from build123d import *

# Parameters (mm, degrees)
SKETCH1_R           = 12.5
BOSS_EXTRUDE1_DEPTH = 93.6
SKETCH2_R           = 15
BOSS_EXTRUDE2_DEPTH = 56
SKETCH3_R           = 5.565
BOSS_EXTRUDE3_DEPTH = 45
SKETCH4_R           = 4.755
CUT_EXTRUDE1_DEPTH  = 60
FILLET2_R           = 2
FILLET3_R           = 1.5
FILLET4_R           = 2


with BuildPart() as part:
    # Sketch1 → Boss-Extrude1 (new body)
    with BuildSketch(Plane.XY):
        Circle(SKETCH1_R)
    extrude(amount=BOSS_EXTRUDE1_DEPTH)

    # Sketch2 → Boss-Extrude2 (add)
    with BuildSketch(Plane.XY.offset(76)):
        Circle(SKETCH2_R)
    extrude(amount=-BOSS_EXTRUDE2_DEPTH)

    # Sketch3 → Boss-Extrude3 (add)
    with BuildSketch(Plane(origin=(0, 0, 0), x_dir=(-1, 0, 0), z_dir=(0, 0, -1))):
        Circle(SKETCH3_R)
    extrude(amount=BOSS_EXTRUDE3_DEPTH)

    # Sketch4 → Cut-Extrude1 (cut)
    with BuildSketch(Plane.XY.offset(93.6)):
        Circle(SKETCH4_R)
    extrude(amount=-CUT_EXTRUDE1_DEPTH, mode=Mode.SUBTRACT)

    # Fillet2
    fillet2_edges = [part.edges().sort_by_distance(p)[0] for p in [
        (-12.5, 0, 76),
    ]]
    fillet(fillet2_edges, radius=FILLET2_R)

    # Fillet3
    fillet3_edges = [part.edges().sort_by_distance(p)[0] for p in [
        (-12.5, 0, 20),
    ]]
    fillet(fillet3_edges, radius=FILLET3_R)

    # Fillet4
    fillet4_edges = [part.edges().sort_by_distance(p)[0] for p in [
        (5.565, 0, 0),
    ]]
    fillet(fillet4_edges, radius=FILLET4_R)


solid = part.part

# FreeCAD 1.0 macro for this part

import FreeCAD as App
import Part
import Sketcher

V = App.Vector


def edges_at(feature, points):
    """Names of the edges that pass closest to the given points."""
    edges = feature.Shape.Edges
    near = lambda p: min(range(len(edges)), key=lambda i: edges[i].distToShape(Part.Vertex(*p))[0])
    return sorted({f"Edge{near(p) + 1}" for p in points})

doc = App.newDocument("Part")
body = doc.addObject("PartDesign::Body", "Body")

sketch1 = body.newObject("Sketcher::SketchObject", "Sketch")
sketch1.AttachmentSupport = (doc.getObject("XY_Plane"), [""])
sketch1.MapMode = "FlatFace"
sketch1.addGeometry(Part.Circle(V(0, 0, 0), V(0, 0, 1), 12.5), False)
sketch1.addConstraint([
    Sketcher.Constraint("Coincident", 0, 3, -1, 1),
    Sketcher.Constraint("Diameter", 0, 25.0),
])
pad1 = body.newObject("PartDesign::Pad", "Pad")
pad1.Profile = sketch1
pad1.Length = 93.6

sketch2 = body.newObject("Sketcher::SketchObject", "Sketch001")
sketch2.AttachmentSupport = (doc.getObject("XY_Plane"), [""])
sketch2.MapMode = "FlatFace"
sketch2.AttachmentOffset = App.Placement(V(0, 0, 76), App.Rotation())
sketch2.addGeometry(Part.Circle(V(0, 0, 0), V(0, 0, 1), 15), False)
sketch2.addConstraint([
    Sketcher.Constraint("Coincident", 0, 3, -1, 1),
    Sketcher.Constraint("Diameter", 0, 30.0),
])
pad2 = body.newObject("PartDesign::Pad", "Pad001")
pad2.Profile = sketch2
pad2.Length = 56
pad2.Reversed = True

sketch3 = body.newObject("Sketcher::SketchObject", "Sketch002")
sketch3.AttachmentSupport = (doc.getObject("XY_Plane"), [""])
sketch3.MapMode = "FlatFace"
sketch3.addGeometry(Part.Circle(V(0, 0, 0), V(0, 0, 1), 5.565), False)
sketch3.addConstraint([
    Sketcher.Constraint("Coincident", 0, 3, -1, 1),
    Sketcher.Constraint("Diameter", 0, 11.13),
])
pad3 = body.newObject("PartDesign::Pad", "Pad002")
pad3.Profile = sketch3
pad3.Length = 45
pad3.Reversed = True

sketch4 = body.newObject("Sketcher::SketchObject", "Sketch003")
sketch4.AttachmentSupport = (doc.getObject("XY_Plane"), [""])
sketch4.MapMode = "FlatFace"
sketch4.AttachmentOffset = App.Placement(V(0, 0, 93.6), App.Rotation())
sketch4.addGeometry(Part.Circle(V(0, 0, 0), V(0, 0, 1), 4.755), False)
sketch4.addConstraint([
    Sketcher.Constraint("Coincident", 0, 3, -1, 1),
    Sketcher.Constraint("Diameter", 0, 9.51),
])
pocket1 = body.newObject("PartDesign::Pocket", "Pocket")
pocket1.Profile = sketch4
pocket1.Length = 60
doc.recompute()

fillet = body.newObject("PartDesign::Fillet", "Fillet")
fillet.Base = (pocket1, edges_at(pocket1, [(-12.5, 0, 76)]))
fillet.Radius = 2
doc.recompute()

fillet2 = body.newObject("PartDesign::Fillet", "Fillet001")
fillet2.Base = (fillet, edges_at(fillet, [(-12.5, 0, 20)]))
fillet2.Radius = 1.5
doc.recompute()

fillet3 = body.newObject("PartDesign::Fillet", "Fillet002")
fillet3.Base = (fillet2, edges_at(fillet2, [(5.565, 0, 0)]))
fillet3.Radius = 2

doc.recompute()
